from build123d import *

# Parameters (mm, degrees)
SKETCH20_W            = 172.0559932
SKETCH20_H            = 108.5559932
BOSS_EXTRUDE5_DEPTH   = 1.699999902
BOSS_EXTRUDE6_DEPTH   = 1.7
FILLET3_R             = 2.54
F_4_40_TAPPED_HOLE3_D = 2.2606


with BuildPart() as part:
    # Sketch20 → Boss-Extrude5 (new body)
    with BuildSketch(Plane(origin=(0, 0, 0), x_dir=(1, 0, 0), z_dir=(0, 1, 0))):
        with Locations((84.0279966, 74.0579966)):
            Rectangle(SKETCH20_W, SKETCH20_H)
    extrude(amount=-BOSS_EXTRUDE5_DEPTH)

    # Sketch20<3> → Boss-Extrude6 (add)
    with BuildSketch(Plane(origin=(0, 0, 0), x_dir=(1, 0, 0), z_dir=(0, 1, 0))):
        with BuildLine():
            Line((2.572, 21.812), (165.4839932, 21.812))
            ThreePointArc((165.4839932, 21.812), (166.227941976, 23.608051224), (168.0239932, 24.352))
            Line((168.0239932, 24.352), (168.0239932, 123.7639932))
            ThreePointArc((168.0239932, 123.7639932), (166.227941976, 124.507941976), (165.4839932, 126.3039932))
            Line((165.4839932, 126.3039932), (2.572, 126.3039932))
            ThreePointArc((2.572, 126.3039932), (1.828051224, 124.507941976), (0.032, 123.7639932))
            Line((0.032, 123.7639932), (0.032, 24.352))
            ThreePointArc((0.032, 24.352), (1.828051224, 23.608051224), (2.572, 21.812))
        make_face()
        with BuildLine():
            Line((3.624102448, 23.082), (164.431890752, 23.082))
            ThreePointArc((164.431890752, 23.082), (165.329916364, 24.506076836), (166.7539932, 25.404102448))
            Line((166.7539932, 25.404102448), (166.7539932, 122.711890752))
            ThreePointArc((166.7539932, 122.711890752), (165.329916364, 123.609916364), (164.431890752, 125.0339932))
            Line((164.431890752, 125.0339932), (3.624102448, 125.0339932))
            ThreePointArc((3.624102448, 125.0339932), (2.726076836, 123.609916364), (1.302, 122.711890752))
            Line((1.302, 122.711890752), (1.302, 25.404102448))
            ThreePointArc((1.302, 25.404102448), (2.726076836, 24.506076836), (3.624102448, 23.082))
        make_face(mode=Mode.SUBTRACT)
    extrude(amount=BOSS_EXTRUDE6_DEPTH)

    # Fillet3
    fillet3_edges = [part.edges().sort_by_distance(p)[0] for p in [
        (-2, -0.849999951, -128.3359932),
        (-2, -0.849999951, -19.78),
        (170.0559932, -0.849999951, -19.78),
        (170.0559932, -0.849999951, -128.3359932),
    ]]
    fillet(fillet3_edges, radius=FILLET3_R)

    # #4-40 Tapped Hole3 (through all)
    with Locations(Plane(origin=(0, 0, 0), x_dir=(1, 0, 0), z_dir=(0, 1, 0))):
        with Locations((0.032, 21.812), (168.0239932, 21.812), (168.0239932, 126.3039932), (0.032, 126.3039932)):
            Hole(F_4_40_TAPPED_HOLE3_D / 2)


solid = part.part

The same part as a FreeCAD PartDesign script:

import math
import FreeCAD as App
import Part
import Sketcher
Q = App.Units.Quantity


def edges_at(feature, points):
    """Names of the edges that pass closest to the given points."""
    edges = feature.Shape.Edges
    near = lambda p: min(range(len(edges)), key=lambda i: edges[i].distToShape(Part.Vertex(*p))[0])
    return sorted({f"Edge{near(p) + 1}" for p in points})

doc = App.newDocument("Part")
body = doc.addObject("PartDesign::Body", "Body")

# Sketch on XZ plane
sketch1 = body.newObject("Sketcher::SketchObject", "Sketch")
sketch1.AttachmentSupport = (doc.getObject("XZ_Plane"), [""])
sketch1.MapMode = "FlatFace"
sketch1.addGeometry(Part.LineSegment(App.Vector(-2, -128, 0), App.Vector(-2, -20, 0)), False)
sketch1.addGeometry(Part.LineSegment(App.Vector(-2, -20, 0), App.Vector(170, -20, 0)), False)
sketch1.addGeometry(Part.LineSegment(App.Vector(170, -20, 0), App.Vector(170, -128, 0)), False)
sketch1.addGeometry(Part.LineSegment(App.Vector(170, -128, 0), App.Vector(-2, -128, 0)), False)
sketch1.addConstraint(Sketcher.Constraint("Coincident", 0, 2, 1, 1))
sketch1.addConstraint(Sketcher.Constraint("Coincident", 1, 2, 2, 1))
sketch1.addConstraint(Sketcher.Constraint("Coincident", 2, 2, 3, 1))
sketch1.addConstraint(Sketcher.Constraint("Coincident", 3, 2, 0, 1))
sketch1.addConstraint(Sketcher.Constraint("Vertical", 0))
sketch1.addConstraint(Sketcher.Constraint("Horizontal", 1))
sketch1.addConstraint(Sketcher.Constraint("Vertical", 2))
sketch1.addConstraint(Sketcher.Constraint("Horizontal", 3))
sketch1.addConstraint(Sketcher.Constraint("DistanceX", 0, 2, -1, 1, Q("2 mm")))
sketch1.addConstraint(Sketcher.Constraint("DistanceY", 0, 2, -1, 1, Q("19.78 mm")))
sketch1.addConstraint(Sketcher.Constraint("DistanceX", 1, 1, 1, 2, Q("172.055993 mm")))
sketch1.addConstraint(Sketcher.Constraint("DistanceY", 0, 1, 0, 2, Q("108.555993 mm")))
pad1 = body.newObject("PartDesign::Pad", "Pad")
pad1.Profile = sketch1
pad1.Length = 1.7

# Sketch on XZ plane
sketch2 = body.newObject("Sketcher::SketchObject", "Sketch001")
sketch2.AttachmentSupport = (doc.getObject("XZ_Plane"), [""])
sketch2.MapMode = "FlatFace"
sketch2.addGeometry(Part.LineSegment(App.Vector(2.6, -21.8, 0), App.Vector(165.5, -21.8, 0)), False)
sketch2.addGeometry(Part.ArcOfCircle(Part.Circle(App.Vector(168, -21.8, 0), App.Vector(0, 0, 1), 2.5), math.radians(-180), math.radians(-90)), False)
sketch2.addGeometry(Part.LineSegment(App.Vector(168, -24.4, 0), App.Vector(168, -123.8, 0)), False)
sketch2.addGeometry(Part.ArcOfCircle(Part.Circle(App.Vector(168, -126.3, 0), App.Vector(0, 0, 1), 2.5), math.radians(90), math.radians(180)), False)
sketch2.addGeometry(Part.LineSegment(App.Vector(165.5, -126.3, 0), App.Vector(2.6, -126.3, 0)), False)
sketch2.addGeometry(Part.ArcOfCircle(Part.Circle(App.Vector(0, -126.3, 0), App.Vector(0, 0, 1), 2.5), math.radians(0), math.radians(90)), False)
sketch2.addGeometry(Part.LineSegment(App.Vector(0, -123.8, 0), App.Vector(0, -24.4, 0)), False)
sketch2.addGeometry(Part.ArcOfCircle(Part.Circle(App.Vector(0, -21.8, 0), App.Vector(0, 0, 1), 2.5), math.radians(-90), math.radians(0)), False)
sketch2.addGeometry(Part.LineSegment(App.Vector(164.4, -23.1, 0), App.Vector(3.6, -23.1, 0)), False)
sketch2.addGeometry(Part.ArcOfCircle(Part.Circle(App.Vector(0, -21.8, 0), App.Vector(0, 0, 1), 3.8), math.radians(-71), math.radians(-19)), False)
sketch2.addGeometry(Part.LineSegment(App.Vector(1.3, -25.4, 0), App.Vector(1.3, -122.7, 0)), False)
sketch2.addGeometry(Part.ArcOfCircle(Part.Circle(App.Vector(0, -126.3, 0), App.Vector(0, 0, 1), 3.8), math.radians(19), math.radians(71)), False)
sketch2.addGeometry(Part.LineSegment(App.Vector(3.6, -125, 0), App.Vector(164.4, -125, 0)), False)
sketch2.addGeometry(Part.ArcOfCircle(Part.Circle(App.Vector(168, -126.3, 0), App.Vector(0, 0, 1), 3.8), math.radians(109), math.radians(161)), False)
sketch2.addGeometry(Part.LineSegment(App.Vector(166.8, -122.7, 0), App.Vector(166.8, -25.4, 0)), False)
sketch2.addGeometry(Part.ArcOfCircle(Part.Circle(App.Vector(168, -21.8, 0), App.Vector(0, 0, 1), 3.8), math.radians(-161), math.radians(-109)), False)
sketch2.addConstraint(Sketcher.Constraint("Coincident", 0, 2, 1, 1))
sketch2.addConstraint(Sketcher.Constraint("Coincident", 1, 2, 2, 1))
sketch2.addConstraint(Sketcher.Constraint("Coincident", 2, 2, 3, 1))
sketch2.addConstraint(Sketcher.Constraint("Coincident", 3, 2, 4, 1))
sketch2.addConstraint(Sketcher.Constraint("Coincident", 4, 2, 5, 1))
sketch2.addConstraint(Sketcher.Constraint("Coincident", 5, 2, 6, 1))
sketch2.addConstraint(Sketcher.Constraint("Coincident", 6, 2, 7, 1))
sketch2.addConstraint(Sketcher.Constraint("Coincident", 7, 2, 0, 1))
sketch2.addConstraint(Sketcher.Constraint("Coincident", 8, 2, 9, 2))
sketch2.addConstraint(Sketcher.Constraint("Coincident", 9, 1, 10, 1))
sketch2.addConstraint(Sketcher.Constraint("Coincident", 10, 2, 11, 2))
sketch2.addConstraint(Sketcher.Constraint("Coincident", 11, 1, 12, 1))
sketch2.addConstraint(Sketcher.Constraint("Coincident", 12, 2, 13, 2))
sketch2.addConstraint(Sketcher.Constraint("Coincident", 13, 1, 14, 1))
sketch2.addConstraint(Sketcher.Constraint("Coincident", 14, 2, 15, 2))
sketch2.addConstraint(Sketcher.Constraint("Coincident", 15, 1, 8, 1))
sketch2.addConstraint(Sketcher.Constraint("Horizontal", 0))
sketch2.addConstraint(Sketcher.Constraint("Vertical", 2))
sketch2.addConstraint(Sketcher.Constraint("Horizontal", 4))
sketch2.addConstraint(Sketcher.Constraint("Vertical", 6))
sketch2.addConstraint(Sketcher.Constraint("Horizontal", 8))
sketch2.addConstraint(Sketcher.Constraint("Vertical", 10))
sketch2.addConstraint(Sketcher.Constraint("Horizontal", 12))
sketch2.addConstraint(Sketcher.Constraint("Vertical", 14))
sketch2.addConstraint(Sketcher.Constraint("Coincident", 9, 3, 7, 3))
sketch2.addConstraint(Sketcher.Constraint("Coincident", 11, 3, 5, 3))
sketch2.addConstraint(Sketcher.Constraint("Coincident", 13, 3, 3, 3))
sketch2.addConstraint(Sketcher.Constraint("Coincident", 15, 3, 1, 3))
sketch2.addConstraint(Sketcher.Constraint("Equal", 1, 3))
sketch2.addConstraint(Sketcher.Constraint("Equal", 3, 5))
sketch2.addConstraint(Sketcher.Constraint("Equal", 5, 7))
sketch2.addConstraint(Sketcher.Constraint("Equal", 9, 11))
sketch2.addConstraint(Sketcher.Constraint("Equal", 11, 13))
sketch2.addConstraint(Sketcher.Constraint("Equal", 13, 15))
sketch2.addConstraint(Sketcher.Constraint("Horizontal", 3, 3, 5, 3))
sketch2.addConstraint(Sketcher.Constraint("Horizontal", 1, 3, 7, 3))
sketch2.addConstraint(Sketcher.Constraint("Horizontal", 15, 3, 0, 2))
sketch2.addConstraint(Sketcher.Constraint("Horizontal", 13, 3, 3, 2))
sketch2.addConstraint(Sketcher.Constraint("Horizontal", 10, 2, 13, 1))
sketch2.addConstraint(Sketcher.Constraint("Horizontal", 9, 1, 14, 2))
sketch2.addConstraint(Sketcher.Constraint("Vertical", 1, 3, 3, 3))
sketch2.addConstraint(Sketcher.Constraint("Vertical", 15, 3, 1, 2))
sketch2.addConstraint(Sketcher.Constraint("Vertical", 11, 3, 5, 2))
sketch2.addConstraint(Sketcher.Constraint("Vertical", 8, 2, 11, 1))
sketch2.addConstraint(Sketcher.Constraint("Radius", 1, Q("0.1 in")))
sketch2.addConstraint(Sketcher.Constraint("Radius", 9, Q("0.15 in")))
sketch2.addConstraint(Sketcher.Constraint("DistanceY", 8, 2, 7, 2, Q("0.05 in")))
sketch2.addConstraint(Sketcher.Constraint("DistanceX", 6, 2, 9, 1, Q("0.05 in")))
sketch2.addConstraint(Sketcher.Constraint("DistanceX", 8, 2, 8, 1, Q("160.807788 mm")))
sketch2.addConstraint(Sketcher.Constraint("DistanceY", 10, 2, 10, 1, Q("97.307788 mm")))
sketch2.addConstraint(Sketcher.Constraint("DistanceY", 1, 3, -1, 1, Q("21.812 mm")))
sketch2.addConstraint(Sketcher.Constraint("DistanceX", -1, 1, 5, 3, Q("0.032 mm")))
pad2 = body.newObject("PartDesign::Pad", "Pad001")
pad2.Profile = sketch2
pad2.Length = 1.7
pad2.Reversed = True
doc.recompute()

fillet = body.newObject("PartDesign::Fillet", "Fillet")
fillet.Base = (pad2, edges_at(pad2, [
    (-2, -0.85, -128.336),
    (-2, -0.85, -19.78),
    (170.056, -0.85, -19.78),
    (170.056, -0.85, -128.336),
]))
fillet.Radius = Q("0.1 in")

# Sketch on XZ plane
sketch3 = body.newObject("Sketcher::SketchObject", "Sketch002")
sketch3.AttachmentSupport = (doc.getObject("XZ_Plane"), [""])
sketch3.MapMode = "FlatFace"
sketch3.addGeometry(Part.Circle(App.Vector(0, -21.8, 0), App.Vector(0, 0, 1), 1.1), False)
sketch3.addGeometry(Part.Circle(App.Vector(168, -21.8, 0), App.Vector(0, 0, 1), 1.1), False)
sketch3.addGeometry(Part.Circle(App.Vector(168, -126.3, 0), App.Vector(0, 0, 1), 1.1), False)
sketch3.addGeometry(Part.Circle(App.Vector(0, -126.3, 0), App.Vector(0, 0, 1), 1.1), False)
sketch3.addConstraint(Sketcher.Constraint("Equal", 0, 1))
sketch3.addConstraint(Sketcher.Constraint("Equal", 1, 2))
sketch3.addConstraint(Sketcher.Constraint("Equal", 2, 3))
sketch3.addConstraint(Sketcher.Constraint("Horizontal", 0, 3, 1, 3))
sketch3.addConstraint(Sketcher.Constraint("Horizontal", 2, 3, 3, 3))
sketch3.addConstraint(Sketcher.Constraint("Vertical", 1, 3, 2, 3))
sketch3.addConstraint(Sketcher.Constraint("Vertical", 0, 3, 3, 3))
sketch3.addConstraint(Sketcher.Constraint("Diameter", 0, Q("0.089 in")))
sketch3.addConstraint(Sketcher.Constraint("DistanceX", -1, 1, 0, 3, Q("0.032 mm")))
sketch3.addConstraint(Sketcher.Constraint("DistanceY", 0, 3, -1, 1, Q("21.812 mm")))
sketch3.addConstraint(Sketcher.Constraint("DistanceX", -1, 1, 1, 3, Q("168.023993 mm")))
sketch3.addConstraint(Sketcher.Constraint("DistanceY", 2, 3, -1, 1, Q("126.303993 mm")))
doc.recompute()
hole = body.newObject("PartDesign::Hole", "Hole")
hole.Profile = sketch3
hole.ThreadType = "None"
hole.Diameter = Q("0.089 in")
hole.DepthType = "ThroughAll"
hole.Reversed = True

doc.recompute()
